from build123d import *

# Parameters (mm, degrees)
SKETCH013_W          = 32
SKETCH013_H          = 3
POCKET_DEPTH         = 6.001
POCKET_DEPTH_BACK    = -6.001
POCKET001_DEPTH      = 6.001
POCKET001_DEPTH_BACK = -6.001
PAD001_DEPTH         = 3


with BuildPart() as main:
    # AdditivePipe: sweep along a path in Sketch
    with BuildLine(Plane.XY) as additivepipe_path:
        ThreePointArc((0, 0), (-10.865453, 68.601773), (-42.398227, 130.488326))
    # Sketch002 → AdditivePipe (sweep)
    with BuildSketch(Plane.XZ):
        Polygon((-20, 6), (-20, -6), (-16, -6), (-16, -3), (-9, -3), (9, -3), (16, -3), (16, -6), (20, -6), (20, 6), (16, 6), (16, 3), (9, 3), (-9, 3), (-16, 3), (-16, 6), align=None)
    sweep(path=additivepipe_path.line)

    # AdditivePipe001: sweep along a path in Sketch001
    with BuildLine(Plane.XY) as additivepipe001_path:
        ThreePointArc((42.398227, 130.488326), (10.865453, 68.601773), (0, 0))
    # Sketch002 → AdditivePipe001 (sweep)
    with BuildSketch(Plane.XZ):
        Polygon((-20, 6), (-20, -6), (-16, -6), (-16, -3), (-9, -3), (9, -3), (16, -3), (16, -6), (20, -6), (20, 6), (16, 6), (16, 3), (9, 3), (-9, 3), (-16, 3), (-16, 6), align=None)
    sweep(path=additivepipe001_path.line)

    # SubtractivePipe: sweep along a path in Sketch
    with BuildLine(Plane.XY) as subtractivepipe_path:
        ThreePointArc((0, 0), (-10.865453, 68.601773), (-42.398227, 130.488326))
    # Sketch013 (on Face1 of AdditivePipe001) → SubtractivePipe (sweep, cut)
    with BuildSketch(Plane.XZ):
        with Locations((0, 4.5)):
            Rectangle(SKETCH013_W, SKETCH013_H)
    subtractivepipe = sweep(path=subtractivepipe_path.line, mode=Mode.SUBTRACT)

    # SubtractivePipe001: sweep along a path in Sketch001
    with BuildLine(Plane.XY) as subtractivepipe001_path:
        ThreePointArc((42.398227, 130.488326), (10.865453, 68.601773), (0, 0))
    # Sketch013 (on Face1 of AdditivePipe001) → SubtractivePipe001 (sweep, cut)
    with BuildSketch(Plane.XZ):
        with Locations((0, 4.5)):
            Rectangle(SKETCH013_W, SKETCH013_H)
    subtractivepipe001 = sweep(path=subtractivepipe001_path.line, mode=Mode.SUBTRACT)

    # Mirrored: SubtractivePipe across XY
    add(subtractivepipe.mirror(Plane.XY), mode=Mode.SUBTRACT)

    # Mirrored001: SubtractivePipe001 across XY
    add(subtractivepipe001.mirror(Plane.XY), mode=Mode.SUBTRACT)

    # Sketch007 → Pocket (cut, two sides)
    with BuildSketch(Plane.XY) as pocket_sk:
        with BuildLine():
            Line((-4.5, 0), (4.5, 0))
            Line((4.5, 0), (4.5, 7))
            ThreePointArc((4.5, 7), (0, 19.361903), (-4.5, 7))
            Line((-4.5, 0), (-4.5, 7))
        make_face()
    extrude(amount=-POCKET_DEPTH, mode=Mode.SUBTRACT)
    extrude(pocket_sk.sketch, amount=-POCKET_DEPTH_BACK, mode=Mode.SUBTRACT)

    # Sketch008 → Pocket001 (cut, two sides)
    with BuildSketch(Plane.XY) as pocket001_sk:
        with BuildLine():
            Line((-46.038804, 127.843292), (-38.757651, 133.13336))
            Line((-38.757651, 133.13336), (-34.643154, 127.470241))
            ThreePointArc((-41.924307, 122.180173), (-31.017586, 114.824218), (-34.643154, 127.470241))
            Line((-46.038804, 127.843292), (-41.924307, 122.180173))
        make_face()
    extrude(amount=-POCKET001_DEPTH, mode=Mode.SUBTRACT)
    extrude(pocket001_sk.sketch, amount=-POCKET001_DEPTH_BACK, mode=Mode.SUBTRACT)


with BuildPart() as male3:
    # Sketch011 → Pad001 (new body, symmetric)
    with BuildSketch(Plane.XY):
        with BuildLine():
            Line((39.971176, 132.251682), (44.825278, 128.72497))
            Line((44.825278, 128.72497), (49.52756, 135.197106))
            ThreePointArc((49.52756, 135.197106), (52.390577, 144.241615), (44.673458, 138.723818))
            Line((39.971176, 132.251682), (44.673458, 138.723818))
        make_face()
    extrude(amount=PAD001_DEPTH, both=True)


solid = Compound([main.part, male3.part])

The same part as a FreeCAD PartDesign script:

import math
import FreeCAD as App
import Part
import Sketcher
from FreeCAD import Vector
Q = App.Units.Quantity

doc = App.newDocument("Part")
body = doc.addObject("PartDesign::Body", "Body")

# Sketch on XZ plane
sketch1 = doc.addObject("Sketcher::SketchObject", "Sketch")
body.addObject(sketch1)
sketch1.AttachmentSupport = (doc.XZ_Plane, [""])
sketch1.MapMode = "FlatFace"
sketch1.addGeometry(Part.LineSegment(Vector(-20, 6, 0), Vector(-20, -6, 0)), False)
sketch1.addGeometry(Part.LineSegment(Vector(-20, -6, 0), Vector(-16, -6, 0)), False)
sketch1.addGeometry(Part.LineSegment(Vector(-16, -6, 0), Vector(-16, -3, 0)), False)
sketch1.addGeometry(Part.LineSegment(Vector(-16, -3, 0), Vector(16, -3, 0)), False)
sketch1.addGeometry(Part.LineSegment(Vector(16, -3, 0), Vector(16, -6, 0)), False)
sketch1.addGeometry(Part.LineSegment(Vector(16, -6, 0), Vector(20, -6, 0)), False)
sketch1.addGeometry(Part.LineSegment(Vector(20, -6, 0), Vector(20, 6, 0)), False)
sketch1.addGeometry(Part.LineSegment(Vector(20, 6, 0), Vector(16, 6, 0)), False)
sketch1.addGeometry(Part.LineSegment(Vector(16, 6, 0), Vector(16, 3, 0)), False)
sketch1.addGeometry(Part.LineSegment(Vector(16, 3, 0), Vector(-16, 3, 0)), False)
sketch1.addGeometry(Part.LineSegment(Vector(-16, 3, 0), Vector(-16, 6, 0)), False)
sketch1.addGeometry(Part.LineSegment(Vector(-16, 6, 0), Vector(-20, 6, 0)), False)
sketch1.addConstraint(Sketcher.Constraint("Coincident", 0, 2, 1, 1))
sketch1.addConstraint(Sketcher.Constraint("Coincident", 1, 2, 2, 1))
sketch1.addConstraint(Sketcher.Constraint("Coincident", 2, 2, 3, 1))
sketch1.addConstraint(Sketcher.Constraint("Coincident", 3, 2, 4, 1))
sketch1.addConstraint(Sketcher.Constraint("Coincident", 4, 2, 5, 1))
sketch1.addConstraint(Sketcher.Constraint("Coincident", 5, 2, 6, 1))
sketch1.addConstraint(Sketcher.Constraint("Coincident", 6, 2, 7, 1))
sketch1.addConstraint(Sketcher.Constraint("Coincident", 7, 2, 8, 1))
sketch1.addConstraint(Sketcher.Constraint("Coincident", 8, 2, 9, 1))
sketch1.addConstraint(Sketcher.Constraint("Coincident", 9, 2, 10, 1))
sketch1.addConstraint(Sketcher.Constraint("Coincident", 10, 2, 11, 1))
sketch1.addConstraint(Sketcher.Constraint("Coincident", 11, 2, 0, 1))
sketch1.addConstraint(Sketcher.Constraint("Vertical", 0))
sketch1.addConstraint(Sketcher.Constraint("Horizontal", 1))
sketch1.addConstraint(Sketcher.Constraint("Vertical", 2))
sketch1.addConstraint(Sketcher.Constraint("Horizontal", 3))
sketch1.addConstraint(Sketcher.Constraint("Vertical", 4))
sketch1.addConstraint(Sketcher.Constraint("Horizontal", 5))
sketch1.addConstraint(Sketcher.Constraint("Vertical", 6))
sketch1.addConstraint(Sketcher.Constraint("Horizontal", 7))
sketch1.addConstraint(Sketcher.Constraint("Vertical", 8))
sketch1.addConstraint(Sketcher.Constraint("Horizontal", 9))
sketch1.addConstraint(Sketcher.Constraint("Vertical", 10))
sketch1.addConstraint(Sketcher.Constraint("Horizontal", 11))
sketch1.addConstraint(Sketcher.Constraint("Symmetric", 0, 2, 6, 2, -1, 1))
sketch1.addConstraint(Sketcher.Constraint("Symmetric", 2, 2, 8, 2, -1, 1))
sketch1.addConstraint(Sketcher.Constraint("Symmetric", 4, 2, 10, 2, -1, 1))
sketch1.addConstraint(Sketcher.Constraint("Symmetric", 1, 2, 4, 2, -2))
sketch1.addConstraint(Sketcher.Constraint("DistanceX", 1, 1, 1, 2, Q("4 mm")))
sketch1.addConstraint(Sketcher.Constraint("DistanceX", 3, 1, 3, 2, Q("32 mm")))
sketch1.addConstraint(Sketcher.Constraint("DistanceY", 0, 2, 0, 1, Q("12 mm")))
sketch1.addConstraint(Sketcher.Constraint("DistanceY", 2, 1, 2, 2, Q("3 mm")))

# Sketch on XY plane
sketch2 = doc.addObject("Sketcher::SketchObject", "Sketch001")
body.addObject(sketch2)
sketch2.AttachmentSupport = (doc.XY_Plane, [""])
sketch2.MapMode = "FlatFace"
sketch2.addGeometry(Part.ArcOfCircle(Part.Circle(Vector(-221.999993, 0.000002, 0), Vector(0, 0, 1), 221.999993), math.radians(-0.000001), math.radians(36)), False)
sketch2.addConstraint(Sketcher.Constraint("Coincident", 0, 1, -1, 1))
sketch2.addConstraint(Sketcher.Constraint("Radius", 0, Q("221.999993 mm")))
sketch2.addConstraint(Sketcher.Constraint("DistanceX", 0, 2, -1, 1, Q("42.398227 mm")))
sketch2.addConstraint(Sketcher.Constraint("DistanceY", -1, 1, 0, 2, Q("130.488326 mm")))
doc.recompute()

additivepipe = doc.addObject("PartDesign::AdditivePipe", "AdditivePipe")
body.addObject(additivepipe)
additivepipe.Profile = sketch1
additivepipe.Spine = (sketch2, ["Edge1"])

# Sketch on XZ plane
sketch3 = doc.addObject("Sketcher::SketchObject", "Sketch002")
body.addObject(sketch3)
sketch3.AttachmentSupport = (doc.XZ_Plane, [""])
sketch3.MapMode = "FlatFace"
sketch3.addGeometry(Part.LineSegment(Vector(-20, 6, 0), Vector(-20, -6, 0)), False)
sketch3.addGeometry(Part.LineSegment(Vector(-20, -6, 0), Vector(-16, -6, 0)), False)
sketch3.addGeometry(Part.LineSegment(Vector(-16, -6, 0), Vector(-16, -3, 0)), False)
sketch3.addGeometry(Part.LineSegment(Vector(-16, -3, 0), Vector(16, -3, 0)), False)
sketch3.addGeometry(Part.LineSegment(Vector(16, -3, 0), Vector(16, -6, 0)), False)
sketch3.addGeometry(Part.LineSegment(Vector(16, -6, 0), Vector(20, -6, 0)), False)
sketch3.addGeometry(Part.LineSegment(Vector(20, -6, 0), Vector(20, 6, 0)), False)
sketch3.addGeometry(Part.LineSegment(Vector(20, 6, 0), Vector(16, 6, 0)), False)
sketch3.addGeometry(Part.LineSegment(Vector(16, 6, 0), Vector(16, 3, 0)), False)
sketch3.addGeometry(Part.LineSegment(Vector(16, 3, 0), Vector(-16, 3, 0)), False)
sketch3.addGeometry(Part.LineSegment(Vector(-16, 3, 0), Vector(-16, 6, 0)), False)
sketch3.addGeometry(Part.LineSegment(Vector(-16, 6, 0), Vector(-20, 6, 0)), False)
sketch3.addConstraint(Sketcher.Constraint("Coincident", 0, 2, 1, 1))
sketch3.addConstraint(Sketcher.Constraint("Coincident", 1, 2, 2, 1))
sketch3.addConstraint(Sketcher.Constraint("Coincident", 2, 2, 3, 1))
sketch3.addConstraint(Sketcher.Constraint("Coincident", 3, 2, 4, 1))
sketch3.addConstraint(Sketcher.Constraint("Coincident", 4, 2, 5, 1))
sketch3.addConstraint(Sketcher.Constraint("Coincident", 5, 2, 6, 1))
sketch3.addConstraint(Sketcher.Constraint("Coincident", 6, 2, 7, 1))
sketch3.addConstraint(Sketcher.Constraint("Coincident", 7, 2, 8, 1))
sketch3.addConstraint(Sketcher.Constraint("Coincident", 8, 2, 9, 1))
sketch3.addConstraint(Sketcher.Constraint("Coincident", 9, 2, 10, 1))
sketch3.addConstraint(Sketcher.Constraint("Coincident", 10, 2, 11, 1))
sketch3.addConstraint(Sketcher.Constraint("Coincident", 11, 2, 0, 1))
sketch3.addConstraint(Sketcher.Constraint("Vertical", 0))
sketch3.addConstraint(Sketcher.Constraint("Horizontal", 1))
sketch3.addConstraint(Sketcher.Constraint("Vertical", 2))
sketch3.addConstraint(Sketcher.Constraint("Horizontal", 3))
sketch3.addConstraint(Sketcher.Constraint("Vertical", 4))
sketch3.addConstraint(Sketcher.Constraint("Horizontal", 5))
sketch3.addConstraint(Sketcher.Constraint("Vertical", 6))
sketch3.addConstraint(Sketcher.Constraint("Horizontal", 7))
sketch3.addConstraint(Sketcher.Constraint("Vertical", 8))
sketch3.addConstraint(Sketcher.Constraint("Horizontal", 9))
sketch3.addConstraint(Sketcher.Constraint("Vertical", 10))
sketch3.addConstraint(Sketcher.Constraint("Horizontal", 11))
sketch3.addConstraint(Sketcher.Constraint("Symmetric", 0, 2, 6, 2, -1, 1))
sketch3.addConstraint(Sketcher.Constraint("Symmetric", 2, 2, 8, 2, -1, 1))
sketch3.addConstraint(Sketcher.Constraint("Symmetric", 4, 2, 10, 2, -1, 1))
sketch3.addConstraint(Sketcher.Constraint("Symmetric", 1, 2, 4, 2, -2))
sketch3.addConstraint(Sketcher.Constraint("DistanceX", 1, 1, 1, 2, Q("4 mm")))
sketch3.addConstraint(Sketcher.Constraint("DistanceX", 3, 1, 3, 2, Q("32 mm")))
sketch3.addConstraint(Sketcher.Constraint("DistanceY", 0, 2, 0, 1, Q("12 mm")))
sketch3.addConstraint(Sketcher.Constraint("DistanceY", 2, 1, 2, 2, Q("3 mm")))

# Sketch on XY plane
sketch4 = doc.addObject("Sketcher::SketchObject", "Sketch003")
body.addObject(sketch4)
sketch4.AttachmentSupport = (doc.XY_Plane, [""])
sketch4.MapMode = "FlatFace"
sketch4.addGeometry(Part.ArcOfCircle(Part.Circle(Vector(221.999993, 0.000002, 0), Vector(0, 0, 1), 221.999993), math.radians(144), math.radians(180.000001)), False)
sketch4.addConstraint(Sketcher.Constraint("Coincident", 0, 2, -1, 1))
sketch4.addConstraint(Sketcher.Constraint("Radius", 0, Q("221.999993 mm")))
sketch4.addConstraint(Sketcher.Constraint("DistanceX", -1, 1, 0, 1, Q("42.398227 mm")))
sketch4.addConstraint(Sketcher.Constraint("DistanceY", -1, 1, 0, 1, Q("130.488326 mm")))
doc.recompute()

additivepipe2 = doc.addObject("PartDesign::AdditivePipe", "AdditivePipe001")
body.addObject(additivepipe2)
additivepipe2.Profile = sketch3
additivepipe2.Spine = (sketch4, ["Edge1"])

# Sketch on XZ plane
sketch5 = doc.addObject("Sketcher::SketchObject", "Sketch004")
body.addObject(sketch5)
sketch5.AttachmentSupport = (doc.XZ_Plane, [""])
sketch5.MapMode = "FlatFace"
sketch5.addGeometry(Part.LineSegment(Vector(-16, 6, 0), Vector(-16, 3, 0)), False)
sketch5.addGeometry(Part.LineSegment(Vector(-16, 3, 0), Vector(16, 3, 0)), False)
sketch5.addGeometry(Part.LineSegment(Vector(16, 3, 0), Vector(16, 6, 0)), False)
sketch5.addGeometry(Part.LineSegment(Vector(16, 6, 0), Vector(-16, 6, 0)), False)
sketch5.addConstraint(Sketcher.Constraint("Coincident", 0, 2, 1, 1))
sketch5.addConstraint(Sketcher.Constraint("Coincident", 1, 2, 2, 1))
sketch5.addConstraint(Sketcher.Constraint("Coincident", 2, 2, 3, 1))
sketch5.addConstraint(Sketcher.Constraint("Coincident", 3, 2, 0, 1))
sketch5.addConstraint(Sketcher.Constraint("Vertical", 0))
sketch5.addConstraint(Sketcher.Constraint("Horizontal", 1))
sketch5.addConstraint(Sketcher.Constraint("Vertical", 2))
sketch5.addConstraint(Sketcher.Constraint("Horizontal", 3))
sketch5.addConstraint(Sketcher.Constraint("DistanceX", 1, 1, 1, 2, Q("32 mm")))
sketch5.addConstraint(Sketcher.Constraint("DistanceY", 0, 2, 0, 1, Q("3 mm")))
sketch5.addConstraint(Sketcher.Constraint("DistanceX", 0, 2, -1, 1, Q("16 mm")))
sketch5.addConstraint(Sketcher.Constraint("DistanceY", -1, 1, 0, 2, Q("3 mm")))

# Sketch on XY plane
sketch6 = doc.addObject("Sketcher::SketchObject", "Sketch005")
body.addObject(sketch6)
sketch6.AttachmentSupport = (doc.XY_Plane, [""])
sketch6.MapMode = "FlatFace"
sketch6.addGeometry(Part.ArcOfCircle(Part.Circle(Vector(-221.999993, 0.000002, 0), Vector(0, 0, 1), 221.999993), math.radians(-0.000001), math.radians(36)), False)
sketch6.addConstraint(Sketcher.Constraint("Coincident", 0, 1, -1, 1))
sketch6.addConstraint(Sketcher.Constraint("Radius", 0, Q("221.999993 mm")))
sketch6.addConstraint(Sketcher.Constraint("DistanceX", 0, 2, -1, 1, Q("42.398227 mm")))
sketch6.addConstraint(Sketcher.Constraint("DistanceY", -1, 1, 0, 2, Q("130.488326 mm")))
doc.recompute()

subtractivepipe = doc.addObject("PartDesign::SubtractivePipe", "SubtractivePipe")
body.addObject(subtractivepipe)
subtractivepipe.Profile = sketch5
subtractivepipe.Spine = (sketch6, ["Edge1"])

# Sketch on XZ plane
sketch7 = doc.addObject("Sketcher::SketchObject", "Sketch006")
body.addObject(sketch7)
sketch7.AttachmentSupport = (doc.XZ_Plane, [""])
sketch7.MapMode = "FlatFace"
sketch7.addGeometry(Part.LineSegment(Vector(-16, 6, 0), Vector(-16, 3, 0)), False)
sketch7.addGeometry(Part.LineSegment(Vector(-16, 3, 0), Vector(16, 3, 0)), False)
sketch7.addGeometry(Part.LineSegment(Vector(16, 3, 0), Vector(16, 6, 0)), False)
sketch7.addGeometry(Part.LineSegment(Vector(16, 6, 0), Vector(-16, 6, 0)), False)
sketch7.addConstraint(Sketcher.Constraint("Coincident", 0, 2, 1, 1))
sketch7.addConstraint(Sketcher.Constraint("Coincident", 1, 2, 2, 1))
sketch7.addConstraint(Sketcher.Constraint("Coincident", 2, 2, 3, 1))
sketch7.addConstraint(Sketcher.Constraint("Coincident", 3, 2, 0, 1))
sketch7.addConstraint(Sketcher.Constraint("Vertical", 0))
sketch7.addConstraint(Sketcher.Constraint("Horizontal", 1))
sketch7.addConstraint(Sketcher.Constraint("Vertical", 2))
sketch7.addConstraint(Sketcher.Constraint("Horizontal", 3))
sketch7.addConstraint(Sketcher.Constraint("DistanceX", 1, 1, 1, 2, Q("32 mm")))
sketch7.addConstraint(Sketcher.Constraint("DistanceY", 0, 2, 0, 1, Q("3 mm")))
sketch7.addConstraint(Sketcher.Constraint("DistanceX", 0, 2, -1, 1, Q("16 mm")))
sketch7.addConstraint(Sketcher.Constraint("DistanceY", -1, 1, 0, 2, Q("3 mm")))

# Sketch on XY plane
sketch8 = doc.addObject("Sketcher::SketchObject", "Sketch007")
body.addObject(sketch8)
sketch8.AttachmentSupport = (doc.XY_Plane, [""])
sketch8.MapMode = "FlatFace"
sketch8.addGeometry(Part.ArcOfCircle(Part.Circle(Vector(221.999993, 0.000002, 0), Vector(0, 0, 1), 221.999993), math.radians(144), math.radians(180.000001)), False)
sketch8.addConstraint(Sketcher.Constraint("Coincident", 0, 2, -1, 1))
sketch8.addConstraint(Sketcher.Constraint("Radius", 0, Q("221.999993 mm")))
sketch8.addConstraint(Sketcher.Constraint("DistanceX", -1, 1, 0, 1, Q("42.398227 mm")))
sketch8.addConstraint(Sketcher.Constraint("DistanceY", -1, 1, 0, 1, Q("130.488326 mm")))
doc.recompute()

subtractivepipe2 = doc.addObject("PartDesign::SubtractivePipe", "SubtractivePipe001")
body.addObject(subtractivepipe2)
subtractivepipe2.Profile = sketch7
subtractivepipe2.Spine = (sketch8, ["Edge1"])
doc.recompute()

mirrored = doc.addObject("PartDesign::Mirrored", "Mirrored")
body.addObject(mirrored)
mirrored.Originals = [subtractivepipe]
mirrored.MirrorPlane = (doc.XY_Plane, [""])
body.Tip = mirrored
doc.recompute()

mirrored2 = doc.addObject("PartDesign::Mirrored", "Mirrored001")
body.addObject(mirrored2)
mirrored2.Originals = [subtractivepipe2]
mirrored2.MirrorPlane = (doc.XY_Plane, [""])
body.Tip = mirrored2

# Sketch on XY plane
sketch9 = doc.addObject("Sketcher::SketchObject", "Sketch008")
body.addObject(sketch9)
sketch9.AttachmentSupport = (doc.XY_Plane, [""])
sketch9.MapMode = "FlatFace"
sketch9.addGeometry(Part.LineSegment(Vector(-4.5, 0, 0), Vector(4.5, 0, 0)), False)
sketch9.addGeometry(Part.LineSegment(Vector(4.5, 0, 0), Vector(4.5, 7, 0)), False)
sketch9.addGeometry(Part.ArcOfCircle(Part.Circle(Vector(0, 12.361903, 0), Vector(0, 0, 1), 7), math.radians(-49.9948), math.radians(229.9948)), False)
sketch9.addGeometry(Part.LineSegment(Vector(-4.5, 7, 0), Vector(-4.5, 0, 0)), False)
sketch9.addConstraint(Sketcher.Constraint("Coincident", 0, 2, 1, 1))
sketch9.addConstraint(Sketcher.Constraint("Coincident", 1, 2, 2, 1))
sketch9.addConstraint(Sketcher.Constraint("Coincident", 2, 2, 3, 1))
sketch9.addConstraint(Sketcher.Constraint("Coincident", 3, 2, 0, 1))
sketch9.addConstraint(Sketcher.Constraint("Horizontal", 0))
sketch9.addConstraint(Sketcher.Constraint("Vertical", 1))
sketch9.addConstraint(Sketcher.Constraint("Vertical", 3))
sketch9.addConstraint(Sketcher.Constraint("Symmetric", 0, 2, 3, 2, -1, 1))
sketch9.addConstraint(Sketcher.Constraint("PointOnObject", 2, 3, -2))
sketch9.addConstraint(Sketcher.Constraint("Radius", 2, Q("7 mm")))
sketch9.addConstraint(Sketcher.Constraint("DistanceX", 0, 1, 0, 2, Q("9 mm")))
sketch9.addConstraint(Sketcher.Constraint("DistanceY", 1, 1, 1, 2, Q("7 mm")))
pocket1 = doc.addObject("PartDesign::Pocket", "Pocket")
body.addObject(pocket1)
pocket1.Profile = sketch9
pocket1.Type = "ThroughAll"
pocket1.Midplane = True

# Sketch on XY plane
sketch10 = doc.addObject("Sketcher::SketchObject", "Sketch009")
body.addObject(sketch10)
sketch10.AttachmentSupport = (doc.XY_Plane, [""])
sketch10.MapMode = "FlatFace"
sketch10.addGeometry(Part.LineSegment(Vector(-38.757651, 133.13336, 0), Vector(-46.038804, 127.843292, 0)), False)
sketch10.addGeometry(Part.LineSegment(Vector(-46.038804, 127.843292, 0), Vector(-41.924307, 122.180173, 0)), False)
sketch10.addGeometry(Part.ArcOfCircle(Part.Circle(Vector(-35.132083, 120.487337, 0), Vector(0, 0, 1), 7), math.radians(166.005206), math.radians(445.994801)), False)
sketch10.addGeometry(Part.LineSegment(Vector(-34.643154, 127.470241, 0), Vector(-38.757651, 133.13336, 0)), False)
sketch10.addConstraint(Sketcher.Constraint("Coincident", 0, 2, 1, 1))
sketch10.addConstraint(Sketcher.Constraint("Coincident", 1, 2, 2, 1))
sketch10.addConstraint(Sketcher.Constraint("Coincident", 2, 2, 3, 1))
sketch10.addConstraint(Sketcher.Constraint("Coincident", 3, 2, 0, 1))
sketch10.addConstraint(Sketcher.Constraint("Perpendicular", 0, 1))
sketch10.addConstraint(Sketcher.Constraint("Parallel", 1, 3))
sketch10.addConstraint(Sketcher.Constraint("Equal", 1, 3))
sketch10.addConstraint(Sketcher.Constraint("Radius", 2, Q("7 mm")))
sketch10.addConstraint(Sketcher.Constraint("Angle", 0, Q("-143.999996 deg")))
sketch10.addConstraint(Sketcher.Constraint("Distance", 0, Q("9 mm")))
sketch10.addConstraint(Sketcher.Constraint("Distance", 1, Q("7 mm")))
sketch10.addConstraint(Sketcher.Constraint("DistanceY", -1, 1, 2, 2, Q("127.470241 mm")))
sketch10.addConstraint(Sketcher.Constraint("DistanceX", 3, 2, -1, 1, Q("38.757651 mm")))
pocket2 = doc.addObject("PartDesign::Pocket", "Pocket001")
body.addObject(pocket2)
pocket2.Profile = sketch10
pocket2.Type = "ThroughAll"
pocket2.Midplane = True
body2 = doc.addObject("PartDesign::Body", "Body001")

# Sketch on XY plane
sketch11 = doc.addObject("Sketcher::SketchObject", "Sketch010")
body2.addObject(sketch11)
sketch11.AttachmentSupport = (doc.getObject("XY_Plane001"), [""])
sketch11.MapMode = "FlatFace"
sketch11.addGeometry(Part.LineSegment(Vector(39.971176, 132.251682, 0), Vector(44.825278, 128.72497, 0)), False)
sketch11.addGeometry(Part.LineSegment(Vector(44.825278, 128.72497, 0), Vector(49.52756, 135.197106, 0)), False)
sketch11.addGeometry(Part.ArcOfCircle(Part.Circle(Vector(49.45165, 140.19653, 0), Vector(0, 0, 1), 5), math.radians(-89.130106), math.radians(197.130099)), False)
sketch11.addGeometry(Part.LineSegment(Vector(44.673458, 138.723818, 0), Vector(39.971176, 132.251682, 0)), False)
sketch11.addConstraint(Sketcher.Constraint("Coincident", 0, 2, 1, 1))
sketch11.addConstraint(Sketcher.Constraint("Coincident", 1, 2, 2, 1))
sketch11.addConstraint(Sketcher.Constraint("Coincident", 2, 2, 3, 1))
sketch11.addConstraint(Sketcher.Constraint("Coincident", 3, 2, 0, 1))
sketch11.addConstraint(Sketcher.Constraint("Perpendicular", 0, 1))
sketch11.addConstraint(Sketcher.Constraint("Parallel", 1, 3))
sketch11.addConstraint(Sketcher.Constraint("Equal", 1, 3))
sketch11.addConstraint(Sketcher.Constraint("Radius", 2, Q("5 mm")))
sketch11.addConstraint(Sketcher.Constraint("Angle", 0, Q("-36.000004 deg")))
sketch11.addConstraint(Sketcher.Constraint("Distance", 0, Q("6 mm")))
sketch11.addConstraint(Sketcher.Constraint("Distance", 1, Q("8 mm")))
sketch11.addConstraint(Sketcher.Constraint("DistanceX", -1, 1, 2, 3, Q("49.45165 mm")))
sketch11.addConstraint(Sketcher.Constraint("DistanceY", -1, 1, 2, 3, Q("140.19653 mm")))
pad1 = doc.addObject("PartDesign::Pad", "Pad")
body2.addObject(pad1)
pad1.Profile = sketch11
pad1.Length = 6
pad1.Midplane = True

doc.recompute()
